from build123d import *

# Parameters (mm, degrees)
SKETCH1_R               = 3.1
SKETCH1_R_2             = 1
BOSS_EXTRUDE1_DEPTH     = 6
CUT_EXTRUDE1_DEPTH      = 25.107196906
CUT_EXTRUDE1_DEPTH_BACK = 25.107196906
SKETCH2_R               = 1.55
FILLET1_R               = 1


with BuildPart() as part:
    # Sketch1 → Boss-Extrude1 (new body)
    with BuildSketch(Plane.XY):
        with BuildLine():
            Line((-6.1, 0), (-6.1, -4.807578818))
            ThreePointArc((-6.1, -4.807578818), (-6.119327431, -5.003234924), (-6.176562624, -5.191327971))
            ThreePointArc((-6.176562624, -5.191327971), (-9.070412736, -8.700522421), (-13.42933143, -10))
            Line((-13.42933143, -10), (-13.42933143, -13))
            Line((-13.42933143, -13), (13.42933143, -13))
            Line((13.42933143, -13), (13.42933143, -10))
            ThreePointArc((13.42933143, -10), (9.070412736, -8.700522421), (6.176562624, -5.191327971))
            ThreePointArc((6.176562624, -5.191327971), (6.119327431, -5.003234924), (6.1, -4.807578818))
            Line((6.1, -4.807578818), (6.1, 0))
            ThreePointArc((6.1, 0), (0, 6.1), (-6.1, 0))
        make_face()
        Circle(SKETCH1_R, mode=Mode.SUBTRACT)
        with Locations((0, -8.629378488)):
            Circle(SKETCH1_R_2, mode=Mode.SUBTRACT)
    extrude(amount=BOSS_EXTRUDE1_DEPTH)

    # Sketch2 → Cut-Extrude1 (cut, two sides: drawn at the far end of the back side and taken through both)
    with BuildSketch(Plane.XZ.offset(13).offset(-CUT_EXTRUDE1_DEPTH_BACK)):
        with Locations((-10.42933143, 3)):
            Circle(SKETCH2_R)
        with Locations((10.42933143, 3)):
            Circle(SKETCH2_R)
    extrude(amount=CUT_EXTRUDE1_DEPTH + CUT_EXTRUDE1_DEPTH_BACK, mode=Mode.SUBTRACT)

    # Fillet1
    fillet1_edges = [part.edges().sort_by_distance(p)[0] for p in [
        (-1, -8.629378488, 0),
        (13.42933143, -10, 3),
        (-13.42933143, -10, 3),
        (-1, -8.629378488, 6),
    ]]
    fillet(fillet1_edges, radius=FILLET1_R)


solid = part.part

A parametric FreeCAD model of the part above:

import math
import FreeCAD as App
import Part
import Sketcher

V = App.Vector


def edges_at(feature, points):
    """Names of the edges that pass closest to the given points."""
    edges = feature.Shape.Edges
    near = lambda p: min(range(len(edges)), key=lambda i: edges[i].distToShape(Part.Vertex(*p))[0])
    return sorted({f"Edge{near(p) + 1}" for p in points})

doc = App.newDocument("Part")
params = doc.addObject("Spreadsheet::Sheet", "Params")
for row, (alias, value) in enumerate([
    ("sketch1_diameter", "2 mm"),
    ("sketch1_diameter2", "6.2 mm"),
    ("sketch1_radius", "6.1 mm"),
    ("sketch1_height", "3 mm"),
    ("pad1_length", "6 mm"),
    ("sketch2_diameter", "3.1 mm"),
    ("fillet_radius", "1 mm"),
], start=1):
    params.set(f"A{row}", alias)
    params.set(f"B{row}", "=" + value)
    params.setAlias(f"B{row}", alias)

body = doc.addObject("PartDesign::Body", "Body")

sketch1 = doc.addObject("Sketcher::SketchObject", "Sketch")
body.addObject(sketch1)
sketch1.AttachmentSupport = (doc.XY_Plane, [""])
sketch1.MapMode = "FlatFace"
sketch1.addGeometry([
    Part.LineSegment(V(-6.1, 0, 0), V(-6.1, -4.807579, 0)),
    Part.ArcOfCircle(Part.Circle(V(-7.1, -4.807579, 0), V(0, 0, 1), 1), math.radians(-22.566108), math.radians(0)),
    Part.ArcOfCircle(Part.Circle(V(-13.382455, -2.196804, 0), V(0, 0, 1), 7.803337), math.radians(-90.344188), math.radians(-22.566108)),
    Part.LineSegment(V(-13.429331, -10, 0), V(-13.429331, -13, 0)),
    Part.LineSegment(V(-13.429331, -13, 0), V(13.429331, -13, 0)),
    Part.LineSegment(V(13.429331, -13, 0), V(13.429331, -10, 0)),
    Part.ArcOfCircle(Part.Circle(V(13.382455, -2.196804, 0), V(0, 0, 1), 7.803337), math.radians(-157.433892), math.radians(-89.655812)),
    Part.ArcOfCircle(Part.Circle(V(7.1, -4.807579, 0), V(0, 0, 1), 1), math.radians(-180), math.radians(-157.433892)),
    Part.LineSegment(V(6.1, -4.807579, 0), V(6.1, 0, 0)),
    Part.ArcOfCircle(Part.Circle(V(0, 0, 0), V(0, 0, 1), 6.1), math.radians(0), math.radians(180)),
    Part.Circle(V(0, -8.629378, 0), V(0, 0, 1), 1),
    Part.Circle(V(0, 0, 0), V(0, 0, 1), 3.1),
], False)
sketch1.addConstraint([
    Sketcher.Constraint("Tangent", 0, 2, 1, 2),
    Sketcher.Constraint("Tangent", 1, 1, 2, 2),
    Sketcher.Constraint("Coincident", 2, 1, 3, 1),
    Sketcher.Constraint("Coincident", 3, 2, 4, 1),
    Sketcher.Constraint("Coincident", 4, 2, 5, 1),
    Sketcher.Constraint("Coincident", 5, 2, 6, 2),
    Sketcher.Constraint("Tangent", 6, 1, 7, 2),
    Sketcher.Constraint("Tangent", 7, 1, 8, 1),
    Sketcher.Constraint("Tangent", 8, 2, 9, 1),
    Sketcher.Constraint("Tangent", 9, 2, 0, 1),
    Sketcher.Constraint("Vertical", 0),
    Sketcher.Constraint("Vertical", 3),
    Sketcher.Constraint("Horizontal", 4),
    Sketcher.Constraint("Vertical", 5),
    Sketcher.Constraint("Vertical", 8),
    Sketcher.Constraint("Coincident", 9, 3, -1, 1),
    Sketcher.Constraint("Coincident", 11, 3, -1, 1),
    Sketcher.Constraint("Equal", 2, 6),
    Sketcher.Constraint("Equal", 1, 7),
    Sketcher.Constraint("Equal", 7, 10),
    Sketcher.Constraint("Symmetric", 2, 3, 6, 3, -2),
    Sketcher.Constraint("PointOnObject", 10, 3, -2),
    Sketcher.Constraint("Horizontal", 2, 1, 5, 2),
    Sketcher.Constraint("Diameter", 10, 2.0),
    Sketcher.Constraint("Diameter", 11, 6.2),
    Sketcher.Constraint("Radius", 9, 6.1),
    Sketcher.Constraint("DistanceY", 3, 2, 3, 1, 3.0),
    Sketcher.Constraint("DistanceY", 2, 1, -1, 1, 10.0),
    Sketcher.Constraint("Radius", 2, 7.803337),
    Sketcher.Constraint("DistanceY", 0, 2, 0, 1, 4.807579),
    Sketcher.Constraint("DistanceY", 10, 3, 1, 3, 3.8218),
    Sketcher.Constraint("DistanceX", 4, 1, 4, 2, 26.858663),
])
sketch1.setExpression("Constraints[23]", "Params.sketch1_diameter")
sketch1.setExpression("Constraints[24]", "Params.sketch1_diameter2")
sketch1.setExpression("Constraints[25]", "Params.sketch1_radius")
sketch1.setExpression("Constraints[26]", "Params.sketch1_height")
pad1 = doc.addObject("PartDesign::Pad", "Pad")
body.addObject(pad1)
pad1.Profile = sketch1
pad1.setExpression("Length", "Params.pad1_length")

sketch2 = doc.addObject("Sketcher::SketchObject", "Sketch001")
body.addObject(sketch2)
sketch2.AttachmentSupport = (doc.XZ_Plane, [""])
sketch2.MapMode = "FlatFace"
sketch2.AttachmentOffset = App.Placement(V(0, 0, 13), App.Rotation())
sketch2.addGeometry([
    Part.Circle(V(-10.4, 3, 0), V(0, 0, 1), 1.6),
    Part.Circle(V(10.4, 3, 0), V(0, 0, 1), 1.6),
], False)
sketch2.addConstraint([
    Sketcher.Constraint("Equal", 0, 1),
    Sketcher.Constraint("Symmetric", 0, 3, 1, 3, -2),
    Sketcher.Constraint("Diameter", 0, 3.1),
    Sketcher.Constraint("DistanceY", -1, 1, 0, 3, 3.0),
    Sketcher.Constraint("DistanceX", 0, 3, -1, 1, 10.429331),
])
sketch2.setExpression("Constraints[2]", "Params.sketch2_diameter")
pocket1 = doc.addObject("PartDesign::Pocket", "Pocket")
body.addObject(pocket1)
pocket1.Profile = sketch2
pocket1.Type = "ThroughAll"
pocket1.Midplane = True
doc.recompute()

fillet = doc.addObject("PartDesign::Fillet", "Fillet")
body.addObject(fillet)
fillet.Base = (pocket1, edges_at(pocket1, [
    (-1, -8.629, 0),
    (13.429, -10, 3),
    (-13.429, -10, 3),
    (-1, -8.629, 6),
]))
fillet.setExpression("Radius", "Params.fillet_radius")

doc.recompute()
